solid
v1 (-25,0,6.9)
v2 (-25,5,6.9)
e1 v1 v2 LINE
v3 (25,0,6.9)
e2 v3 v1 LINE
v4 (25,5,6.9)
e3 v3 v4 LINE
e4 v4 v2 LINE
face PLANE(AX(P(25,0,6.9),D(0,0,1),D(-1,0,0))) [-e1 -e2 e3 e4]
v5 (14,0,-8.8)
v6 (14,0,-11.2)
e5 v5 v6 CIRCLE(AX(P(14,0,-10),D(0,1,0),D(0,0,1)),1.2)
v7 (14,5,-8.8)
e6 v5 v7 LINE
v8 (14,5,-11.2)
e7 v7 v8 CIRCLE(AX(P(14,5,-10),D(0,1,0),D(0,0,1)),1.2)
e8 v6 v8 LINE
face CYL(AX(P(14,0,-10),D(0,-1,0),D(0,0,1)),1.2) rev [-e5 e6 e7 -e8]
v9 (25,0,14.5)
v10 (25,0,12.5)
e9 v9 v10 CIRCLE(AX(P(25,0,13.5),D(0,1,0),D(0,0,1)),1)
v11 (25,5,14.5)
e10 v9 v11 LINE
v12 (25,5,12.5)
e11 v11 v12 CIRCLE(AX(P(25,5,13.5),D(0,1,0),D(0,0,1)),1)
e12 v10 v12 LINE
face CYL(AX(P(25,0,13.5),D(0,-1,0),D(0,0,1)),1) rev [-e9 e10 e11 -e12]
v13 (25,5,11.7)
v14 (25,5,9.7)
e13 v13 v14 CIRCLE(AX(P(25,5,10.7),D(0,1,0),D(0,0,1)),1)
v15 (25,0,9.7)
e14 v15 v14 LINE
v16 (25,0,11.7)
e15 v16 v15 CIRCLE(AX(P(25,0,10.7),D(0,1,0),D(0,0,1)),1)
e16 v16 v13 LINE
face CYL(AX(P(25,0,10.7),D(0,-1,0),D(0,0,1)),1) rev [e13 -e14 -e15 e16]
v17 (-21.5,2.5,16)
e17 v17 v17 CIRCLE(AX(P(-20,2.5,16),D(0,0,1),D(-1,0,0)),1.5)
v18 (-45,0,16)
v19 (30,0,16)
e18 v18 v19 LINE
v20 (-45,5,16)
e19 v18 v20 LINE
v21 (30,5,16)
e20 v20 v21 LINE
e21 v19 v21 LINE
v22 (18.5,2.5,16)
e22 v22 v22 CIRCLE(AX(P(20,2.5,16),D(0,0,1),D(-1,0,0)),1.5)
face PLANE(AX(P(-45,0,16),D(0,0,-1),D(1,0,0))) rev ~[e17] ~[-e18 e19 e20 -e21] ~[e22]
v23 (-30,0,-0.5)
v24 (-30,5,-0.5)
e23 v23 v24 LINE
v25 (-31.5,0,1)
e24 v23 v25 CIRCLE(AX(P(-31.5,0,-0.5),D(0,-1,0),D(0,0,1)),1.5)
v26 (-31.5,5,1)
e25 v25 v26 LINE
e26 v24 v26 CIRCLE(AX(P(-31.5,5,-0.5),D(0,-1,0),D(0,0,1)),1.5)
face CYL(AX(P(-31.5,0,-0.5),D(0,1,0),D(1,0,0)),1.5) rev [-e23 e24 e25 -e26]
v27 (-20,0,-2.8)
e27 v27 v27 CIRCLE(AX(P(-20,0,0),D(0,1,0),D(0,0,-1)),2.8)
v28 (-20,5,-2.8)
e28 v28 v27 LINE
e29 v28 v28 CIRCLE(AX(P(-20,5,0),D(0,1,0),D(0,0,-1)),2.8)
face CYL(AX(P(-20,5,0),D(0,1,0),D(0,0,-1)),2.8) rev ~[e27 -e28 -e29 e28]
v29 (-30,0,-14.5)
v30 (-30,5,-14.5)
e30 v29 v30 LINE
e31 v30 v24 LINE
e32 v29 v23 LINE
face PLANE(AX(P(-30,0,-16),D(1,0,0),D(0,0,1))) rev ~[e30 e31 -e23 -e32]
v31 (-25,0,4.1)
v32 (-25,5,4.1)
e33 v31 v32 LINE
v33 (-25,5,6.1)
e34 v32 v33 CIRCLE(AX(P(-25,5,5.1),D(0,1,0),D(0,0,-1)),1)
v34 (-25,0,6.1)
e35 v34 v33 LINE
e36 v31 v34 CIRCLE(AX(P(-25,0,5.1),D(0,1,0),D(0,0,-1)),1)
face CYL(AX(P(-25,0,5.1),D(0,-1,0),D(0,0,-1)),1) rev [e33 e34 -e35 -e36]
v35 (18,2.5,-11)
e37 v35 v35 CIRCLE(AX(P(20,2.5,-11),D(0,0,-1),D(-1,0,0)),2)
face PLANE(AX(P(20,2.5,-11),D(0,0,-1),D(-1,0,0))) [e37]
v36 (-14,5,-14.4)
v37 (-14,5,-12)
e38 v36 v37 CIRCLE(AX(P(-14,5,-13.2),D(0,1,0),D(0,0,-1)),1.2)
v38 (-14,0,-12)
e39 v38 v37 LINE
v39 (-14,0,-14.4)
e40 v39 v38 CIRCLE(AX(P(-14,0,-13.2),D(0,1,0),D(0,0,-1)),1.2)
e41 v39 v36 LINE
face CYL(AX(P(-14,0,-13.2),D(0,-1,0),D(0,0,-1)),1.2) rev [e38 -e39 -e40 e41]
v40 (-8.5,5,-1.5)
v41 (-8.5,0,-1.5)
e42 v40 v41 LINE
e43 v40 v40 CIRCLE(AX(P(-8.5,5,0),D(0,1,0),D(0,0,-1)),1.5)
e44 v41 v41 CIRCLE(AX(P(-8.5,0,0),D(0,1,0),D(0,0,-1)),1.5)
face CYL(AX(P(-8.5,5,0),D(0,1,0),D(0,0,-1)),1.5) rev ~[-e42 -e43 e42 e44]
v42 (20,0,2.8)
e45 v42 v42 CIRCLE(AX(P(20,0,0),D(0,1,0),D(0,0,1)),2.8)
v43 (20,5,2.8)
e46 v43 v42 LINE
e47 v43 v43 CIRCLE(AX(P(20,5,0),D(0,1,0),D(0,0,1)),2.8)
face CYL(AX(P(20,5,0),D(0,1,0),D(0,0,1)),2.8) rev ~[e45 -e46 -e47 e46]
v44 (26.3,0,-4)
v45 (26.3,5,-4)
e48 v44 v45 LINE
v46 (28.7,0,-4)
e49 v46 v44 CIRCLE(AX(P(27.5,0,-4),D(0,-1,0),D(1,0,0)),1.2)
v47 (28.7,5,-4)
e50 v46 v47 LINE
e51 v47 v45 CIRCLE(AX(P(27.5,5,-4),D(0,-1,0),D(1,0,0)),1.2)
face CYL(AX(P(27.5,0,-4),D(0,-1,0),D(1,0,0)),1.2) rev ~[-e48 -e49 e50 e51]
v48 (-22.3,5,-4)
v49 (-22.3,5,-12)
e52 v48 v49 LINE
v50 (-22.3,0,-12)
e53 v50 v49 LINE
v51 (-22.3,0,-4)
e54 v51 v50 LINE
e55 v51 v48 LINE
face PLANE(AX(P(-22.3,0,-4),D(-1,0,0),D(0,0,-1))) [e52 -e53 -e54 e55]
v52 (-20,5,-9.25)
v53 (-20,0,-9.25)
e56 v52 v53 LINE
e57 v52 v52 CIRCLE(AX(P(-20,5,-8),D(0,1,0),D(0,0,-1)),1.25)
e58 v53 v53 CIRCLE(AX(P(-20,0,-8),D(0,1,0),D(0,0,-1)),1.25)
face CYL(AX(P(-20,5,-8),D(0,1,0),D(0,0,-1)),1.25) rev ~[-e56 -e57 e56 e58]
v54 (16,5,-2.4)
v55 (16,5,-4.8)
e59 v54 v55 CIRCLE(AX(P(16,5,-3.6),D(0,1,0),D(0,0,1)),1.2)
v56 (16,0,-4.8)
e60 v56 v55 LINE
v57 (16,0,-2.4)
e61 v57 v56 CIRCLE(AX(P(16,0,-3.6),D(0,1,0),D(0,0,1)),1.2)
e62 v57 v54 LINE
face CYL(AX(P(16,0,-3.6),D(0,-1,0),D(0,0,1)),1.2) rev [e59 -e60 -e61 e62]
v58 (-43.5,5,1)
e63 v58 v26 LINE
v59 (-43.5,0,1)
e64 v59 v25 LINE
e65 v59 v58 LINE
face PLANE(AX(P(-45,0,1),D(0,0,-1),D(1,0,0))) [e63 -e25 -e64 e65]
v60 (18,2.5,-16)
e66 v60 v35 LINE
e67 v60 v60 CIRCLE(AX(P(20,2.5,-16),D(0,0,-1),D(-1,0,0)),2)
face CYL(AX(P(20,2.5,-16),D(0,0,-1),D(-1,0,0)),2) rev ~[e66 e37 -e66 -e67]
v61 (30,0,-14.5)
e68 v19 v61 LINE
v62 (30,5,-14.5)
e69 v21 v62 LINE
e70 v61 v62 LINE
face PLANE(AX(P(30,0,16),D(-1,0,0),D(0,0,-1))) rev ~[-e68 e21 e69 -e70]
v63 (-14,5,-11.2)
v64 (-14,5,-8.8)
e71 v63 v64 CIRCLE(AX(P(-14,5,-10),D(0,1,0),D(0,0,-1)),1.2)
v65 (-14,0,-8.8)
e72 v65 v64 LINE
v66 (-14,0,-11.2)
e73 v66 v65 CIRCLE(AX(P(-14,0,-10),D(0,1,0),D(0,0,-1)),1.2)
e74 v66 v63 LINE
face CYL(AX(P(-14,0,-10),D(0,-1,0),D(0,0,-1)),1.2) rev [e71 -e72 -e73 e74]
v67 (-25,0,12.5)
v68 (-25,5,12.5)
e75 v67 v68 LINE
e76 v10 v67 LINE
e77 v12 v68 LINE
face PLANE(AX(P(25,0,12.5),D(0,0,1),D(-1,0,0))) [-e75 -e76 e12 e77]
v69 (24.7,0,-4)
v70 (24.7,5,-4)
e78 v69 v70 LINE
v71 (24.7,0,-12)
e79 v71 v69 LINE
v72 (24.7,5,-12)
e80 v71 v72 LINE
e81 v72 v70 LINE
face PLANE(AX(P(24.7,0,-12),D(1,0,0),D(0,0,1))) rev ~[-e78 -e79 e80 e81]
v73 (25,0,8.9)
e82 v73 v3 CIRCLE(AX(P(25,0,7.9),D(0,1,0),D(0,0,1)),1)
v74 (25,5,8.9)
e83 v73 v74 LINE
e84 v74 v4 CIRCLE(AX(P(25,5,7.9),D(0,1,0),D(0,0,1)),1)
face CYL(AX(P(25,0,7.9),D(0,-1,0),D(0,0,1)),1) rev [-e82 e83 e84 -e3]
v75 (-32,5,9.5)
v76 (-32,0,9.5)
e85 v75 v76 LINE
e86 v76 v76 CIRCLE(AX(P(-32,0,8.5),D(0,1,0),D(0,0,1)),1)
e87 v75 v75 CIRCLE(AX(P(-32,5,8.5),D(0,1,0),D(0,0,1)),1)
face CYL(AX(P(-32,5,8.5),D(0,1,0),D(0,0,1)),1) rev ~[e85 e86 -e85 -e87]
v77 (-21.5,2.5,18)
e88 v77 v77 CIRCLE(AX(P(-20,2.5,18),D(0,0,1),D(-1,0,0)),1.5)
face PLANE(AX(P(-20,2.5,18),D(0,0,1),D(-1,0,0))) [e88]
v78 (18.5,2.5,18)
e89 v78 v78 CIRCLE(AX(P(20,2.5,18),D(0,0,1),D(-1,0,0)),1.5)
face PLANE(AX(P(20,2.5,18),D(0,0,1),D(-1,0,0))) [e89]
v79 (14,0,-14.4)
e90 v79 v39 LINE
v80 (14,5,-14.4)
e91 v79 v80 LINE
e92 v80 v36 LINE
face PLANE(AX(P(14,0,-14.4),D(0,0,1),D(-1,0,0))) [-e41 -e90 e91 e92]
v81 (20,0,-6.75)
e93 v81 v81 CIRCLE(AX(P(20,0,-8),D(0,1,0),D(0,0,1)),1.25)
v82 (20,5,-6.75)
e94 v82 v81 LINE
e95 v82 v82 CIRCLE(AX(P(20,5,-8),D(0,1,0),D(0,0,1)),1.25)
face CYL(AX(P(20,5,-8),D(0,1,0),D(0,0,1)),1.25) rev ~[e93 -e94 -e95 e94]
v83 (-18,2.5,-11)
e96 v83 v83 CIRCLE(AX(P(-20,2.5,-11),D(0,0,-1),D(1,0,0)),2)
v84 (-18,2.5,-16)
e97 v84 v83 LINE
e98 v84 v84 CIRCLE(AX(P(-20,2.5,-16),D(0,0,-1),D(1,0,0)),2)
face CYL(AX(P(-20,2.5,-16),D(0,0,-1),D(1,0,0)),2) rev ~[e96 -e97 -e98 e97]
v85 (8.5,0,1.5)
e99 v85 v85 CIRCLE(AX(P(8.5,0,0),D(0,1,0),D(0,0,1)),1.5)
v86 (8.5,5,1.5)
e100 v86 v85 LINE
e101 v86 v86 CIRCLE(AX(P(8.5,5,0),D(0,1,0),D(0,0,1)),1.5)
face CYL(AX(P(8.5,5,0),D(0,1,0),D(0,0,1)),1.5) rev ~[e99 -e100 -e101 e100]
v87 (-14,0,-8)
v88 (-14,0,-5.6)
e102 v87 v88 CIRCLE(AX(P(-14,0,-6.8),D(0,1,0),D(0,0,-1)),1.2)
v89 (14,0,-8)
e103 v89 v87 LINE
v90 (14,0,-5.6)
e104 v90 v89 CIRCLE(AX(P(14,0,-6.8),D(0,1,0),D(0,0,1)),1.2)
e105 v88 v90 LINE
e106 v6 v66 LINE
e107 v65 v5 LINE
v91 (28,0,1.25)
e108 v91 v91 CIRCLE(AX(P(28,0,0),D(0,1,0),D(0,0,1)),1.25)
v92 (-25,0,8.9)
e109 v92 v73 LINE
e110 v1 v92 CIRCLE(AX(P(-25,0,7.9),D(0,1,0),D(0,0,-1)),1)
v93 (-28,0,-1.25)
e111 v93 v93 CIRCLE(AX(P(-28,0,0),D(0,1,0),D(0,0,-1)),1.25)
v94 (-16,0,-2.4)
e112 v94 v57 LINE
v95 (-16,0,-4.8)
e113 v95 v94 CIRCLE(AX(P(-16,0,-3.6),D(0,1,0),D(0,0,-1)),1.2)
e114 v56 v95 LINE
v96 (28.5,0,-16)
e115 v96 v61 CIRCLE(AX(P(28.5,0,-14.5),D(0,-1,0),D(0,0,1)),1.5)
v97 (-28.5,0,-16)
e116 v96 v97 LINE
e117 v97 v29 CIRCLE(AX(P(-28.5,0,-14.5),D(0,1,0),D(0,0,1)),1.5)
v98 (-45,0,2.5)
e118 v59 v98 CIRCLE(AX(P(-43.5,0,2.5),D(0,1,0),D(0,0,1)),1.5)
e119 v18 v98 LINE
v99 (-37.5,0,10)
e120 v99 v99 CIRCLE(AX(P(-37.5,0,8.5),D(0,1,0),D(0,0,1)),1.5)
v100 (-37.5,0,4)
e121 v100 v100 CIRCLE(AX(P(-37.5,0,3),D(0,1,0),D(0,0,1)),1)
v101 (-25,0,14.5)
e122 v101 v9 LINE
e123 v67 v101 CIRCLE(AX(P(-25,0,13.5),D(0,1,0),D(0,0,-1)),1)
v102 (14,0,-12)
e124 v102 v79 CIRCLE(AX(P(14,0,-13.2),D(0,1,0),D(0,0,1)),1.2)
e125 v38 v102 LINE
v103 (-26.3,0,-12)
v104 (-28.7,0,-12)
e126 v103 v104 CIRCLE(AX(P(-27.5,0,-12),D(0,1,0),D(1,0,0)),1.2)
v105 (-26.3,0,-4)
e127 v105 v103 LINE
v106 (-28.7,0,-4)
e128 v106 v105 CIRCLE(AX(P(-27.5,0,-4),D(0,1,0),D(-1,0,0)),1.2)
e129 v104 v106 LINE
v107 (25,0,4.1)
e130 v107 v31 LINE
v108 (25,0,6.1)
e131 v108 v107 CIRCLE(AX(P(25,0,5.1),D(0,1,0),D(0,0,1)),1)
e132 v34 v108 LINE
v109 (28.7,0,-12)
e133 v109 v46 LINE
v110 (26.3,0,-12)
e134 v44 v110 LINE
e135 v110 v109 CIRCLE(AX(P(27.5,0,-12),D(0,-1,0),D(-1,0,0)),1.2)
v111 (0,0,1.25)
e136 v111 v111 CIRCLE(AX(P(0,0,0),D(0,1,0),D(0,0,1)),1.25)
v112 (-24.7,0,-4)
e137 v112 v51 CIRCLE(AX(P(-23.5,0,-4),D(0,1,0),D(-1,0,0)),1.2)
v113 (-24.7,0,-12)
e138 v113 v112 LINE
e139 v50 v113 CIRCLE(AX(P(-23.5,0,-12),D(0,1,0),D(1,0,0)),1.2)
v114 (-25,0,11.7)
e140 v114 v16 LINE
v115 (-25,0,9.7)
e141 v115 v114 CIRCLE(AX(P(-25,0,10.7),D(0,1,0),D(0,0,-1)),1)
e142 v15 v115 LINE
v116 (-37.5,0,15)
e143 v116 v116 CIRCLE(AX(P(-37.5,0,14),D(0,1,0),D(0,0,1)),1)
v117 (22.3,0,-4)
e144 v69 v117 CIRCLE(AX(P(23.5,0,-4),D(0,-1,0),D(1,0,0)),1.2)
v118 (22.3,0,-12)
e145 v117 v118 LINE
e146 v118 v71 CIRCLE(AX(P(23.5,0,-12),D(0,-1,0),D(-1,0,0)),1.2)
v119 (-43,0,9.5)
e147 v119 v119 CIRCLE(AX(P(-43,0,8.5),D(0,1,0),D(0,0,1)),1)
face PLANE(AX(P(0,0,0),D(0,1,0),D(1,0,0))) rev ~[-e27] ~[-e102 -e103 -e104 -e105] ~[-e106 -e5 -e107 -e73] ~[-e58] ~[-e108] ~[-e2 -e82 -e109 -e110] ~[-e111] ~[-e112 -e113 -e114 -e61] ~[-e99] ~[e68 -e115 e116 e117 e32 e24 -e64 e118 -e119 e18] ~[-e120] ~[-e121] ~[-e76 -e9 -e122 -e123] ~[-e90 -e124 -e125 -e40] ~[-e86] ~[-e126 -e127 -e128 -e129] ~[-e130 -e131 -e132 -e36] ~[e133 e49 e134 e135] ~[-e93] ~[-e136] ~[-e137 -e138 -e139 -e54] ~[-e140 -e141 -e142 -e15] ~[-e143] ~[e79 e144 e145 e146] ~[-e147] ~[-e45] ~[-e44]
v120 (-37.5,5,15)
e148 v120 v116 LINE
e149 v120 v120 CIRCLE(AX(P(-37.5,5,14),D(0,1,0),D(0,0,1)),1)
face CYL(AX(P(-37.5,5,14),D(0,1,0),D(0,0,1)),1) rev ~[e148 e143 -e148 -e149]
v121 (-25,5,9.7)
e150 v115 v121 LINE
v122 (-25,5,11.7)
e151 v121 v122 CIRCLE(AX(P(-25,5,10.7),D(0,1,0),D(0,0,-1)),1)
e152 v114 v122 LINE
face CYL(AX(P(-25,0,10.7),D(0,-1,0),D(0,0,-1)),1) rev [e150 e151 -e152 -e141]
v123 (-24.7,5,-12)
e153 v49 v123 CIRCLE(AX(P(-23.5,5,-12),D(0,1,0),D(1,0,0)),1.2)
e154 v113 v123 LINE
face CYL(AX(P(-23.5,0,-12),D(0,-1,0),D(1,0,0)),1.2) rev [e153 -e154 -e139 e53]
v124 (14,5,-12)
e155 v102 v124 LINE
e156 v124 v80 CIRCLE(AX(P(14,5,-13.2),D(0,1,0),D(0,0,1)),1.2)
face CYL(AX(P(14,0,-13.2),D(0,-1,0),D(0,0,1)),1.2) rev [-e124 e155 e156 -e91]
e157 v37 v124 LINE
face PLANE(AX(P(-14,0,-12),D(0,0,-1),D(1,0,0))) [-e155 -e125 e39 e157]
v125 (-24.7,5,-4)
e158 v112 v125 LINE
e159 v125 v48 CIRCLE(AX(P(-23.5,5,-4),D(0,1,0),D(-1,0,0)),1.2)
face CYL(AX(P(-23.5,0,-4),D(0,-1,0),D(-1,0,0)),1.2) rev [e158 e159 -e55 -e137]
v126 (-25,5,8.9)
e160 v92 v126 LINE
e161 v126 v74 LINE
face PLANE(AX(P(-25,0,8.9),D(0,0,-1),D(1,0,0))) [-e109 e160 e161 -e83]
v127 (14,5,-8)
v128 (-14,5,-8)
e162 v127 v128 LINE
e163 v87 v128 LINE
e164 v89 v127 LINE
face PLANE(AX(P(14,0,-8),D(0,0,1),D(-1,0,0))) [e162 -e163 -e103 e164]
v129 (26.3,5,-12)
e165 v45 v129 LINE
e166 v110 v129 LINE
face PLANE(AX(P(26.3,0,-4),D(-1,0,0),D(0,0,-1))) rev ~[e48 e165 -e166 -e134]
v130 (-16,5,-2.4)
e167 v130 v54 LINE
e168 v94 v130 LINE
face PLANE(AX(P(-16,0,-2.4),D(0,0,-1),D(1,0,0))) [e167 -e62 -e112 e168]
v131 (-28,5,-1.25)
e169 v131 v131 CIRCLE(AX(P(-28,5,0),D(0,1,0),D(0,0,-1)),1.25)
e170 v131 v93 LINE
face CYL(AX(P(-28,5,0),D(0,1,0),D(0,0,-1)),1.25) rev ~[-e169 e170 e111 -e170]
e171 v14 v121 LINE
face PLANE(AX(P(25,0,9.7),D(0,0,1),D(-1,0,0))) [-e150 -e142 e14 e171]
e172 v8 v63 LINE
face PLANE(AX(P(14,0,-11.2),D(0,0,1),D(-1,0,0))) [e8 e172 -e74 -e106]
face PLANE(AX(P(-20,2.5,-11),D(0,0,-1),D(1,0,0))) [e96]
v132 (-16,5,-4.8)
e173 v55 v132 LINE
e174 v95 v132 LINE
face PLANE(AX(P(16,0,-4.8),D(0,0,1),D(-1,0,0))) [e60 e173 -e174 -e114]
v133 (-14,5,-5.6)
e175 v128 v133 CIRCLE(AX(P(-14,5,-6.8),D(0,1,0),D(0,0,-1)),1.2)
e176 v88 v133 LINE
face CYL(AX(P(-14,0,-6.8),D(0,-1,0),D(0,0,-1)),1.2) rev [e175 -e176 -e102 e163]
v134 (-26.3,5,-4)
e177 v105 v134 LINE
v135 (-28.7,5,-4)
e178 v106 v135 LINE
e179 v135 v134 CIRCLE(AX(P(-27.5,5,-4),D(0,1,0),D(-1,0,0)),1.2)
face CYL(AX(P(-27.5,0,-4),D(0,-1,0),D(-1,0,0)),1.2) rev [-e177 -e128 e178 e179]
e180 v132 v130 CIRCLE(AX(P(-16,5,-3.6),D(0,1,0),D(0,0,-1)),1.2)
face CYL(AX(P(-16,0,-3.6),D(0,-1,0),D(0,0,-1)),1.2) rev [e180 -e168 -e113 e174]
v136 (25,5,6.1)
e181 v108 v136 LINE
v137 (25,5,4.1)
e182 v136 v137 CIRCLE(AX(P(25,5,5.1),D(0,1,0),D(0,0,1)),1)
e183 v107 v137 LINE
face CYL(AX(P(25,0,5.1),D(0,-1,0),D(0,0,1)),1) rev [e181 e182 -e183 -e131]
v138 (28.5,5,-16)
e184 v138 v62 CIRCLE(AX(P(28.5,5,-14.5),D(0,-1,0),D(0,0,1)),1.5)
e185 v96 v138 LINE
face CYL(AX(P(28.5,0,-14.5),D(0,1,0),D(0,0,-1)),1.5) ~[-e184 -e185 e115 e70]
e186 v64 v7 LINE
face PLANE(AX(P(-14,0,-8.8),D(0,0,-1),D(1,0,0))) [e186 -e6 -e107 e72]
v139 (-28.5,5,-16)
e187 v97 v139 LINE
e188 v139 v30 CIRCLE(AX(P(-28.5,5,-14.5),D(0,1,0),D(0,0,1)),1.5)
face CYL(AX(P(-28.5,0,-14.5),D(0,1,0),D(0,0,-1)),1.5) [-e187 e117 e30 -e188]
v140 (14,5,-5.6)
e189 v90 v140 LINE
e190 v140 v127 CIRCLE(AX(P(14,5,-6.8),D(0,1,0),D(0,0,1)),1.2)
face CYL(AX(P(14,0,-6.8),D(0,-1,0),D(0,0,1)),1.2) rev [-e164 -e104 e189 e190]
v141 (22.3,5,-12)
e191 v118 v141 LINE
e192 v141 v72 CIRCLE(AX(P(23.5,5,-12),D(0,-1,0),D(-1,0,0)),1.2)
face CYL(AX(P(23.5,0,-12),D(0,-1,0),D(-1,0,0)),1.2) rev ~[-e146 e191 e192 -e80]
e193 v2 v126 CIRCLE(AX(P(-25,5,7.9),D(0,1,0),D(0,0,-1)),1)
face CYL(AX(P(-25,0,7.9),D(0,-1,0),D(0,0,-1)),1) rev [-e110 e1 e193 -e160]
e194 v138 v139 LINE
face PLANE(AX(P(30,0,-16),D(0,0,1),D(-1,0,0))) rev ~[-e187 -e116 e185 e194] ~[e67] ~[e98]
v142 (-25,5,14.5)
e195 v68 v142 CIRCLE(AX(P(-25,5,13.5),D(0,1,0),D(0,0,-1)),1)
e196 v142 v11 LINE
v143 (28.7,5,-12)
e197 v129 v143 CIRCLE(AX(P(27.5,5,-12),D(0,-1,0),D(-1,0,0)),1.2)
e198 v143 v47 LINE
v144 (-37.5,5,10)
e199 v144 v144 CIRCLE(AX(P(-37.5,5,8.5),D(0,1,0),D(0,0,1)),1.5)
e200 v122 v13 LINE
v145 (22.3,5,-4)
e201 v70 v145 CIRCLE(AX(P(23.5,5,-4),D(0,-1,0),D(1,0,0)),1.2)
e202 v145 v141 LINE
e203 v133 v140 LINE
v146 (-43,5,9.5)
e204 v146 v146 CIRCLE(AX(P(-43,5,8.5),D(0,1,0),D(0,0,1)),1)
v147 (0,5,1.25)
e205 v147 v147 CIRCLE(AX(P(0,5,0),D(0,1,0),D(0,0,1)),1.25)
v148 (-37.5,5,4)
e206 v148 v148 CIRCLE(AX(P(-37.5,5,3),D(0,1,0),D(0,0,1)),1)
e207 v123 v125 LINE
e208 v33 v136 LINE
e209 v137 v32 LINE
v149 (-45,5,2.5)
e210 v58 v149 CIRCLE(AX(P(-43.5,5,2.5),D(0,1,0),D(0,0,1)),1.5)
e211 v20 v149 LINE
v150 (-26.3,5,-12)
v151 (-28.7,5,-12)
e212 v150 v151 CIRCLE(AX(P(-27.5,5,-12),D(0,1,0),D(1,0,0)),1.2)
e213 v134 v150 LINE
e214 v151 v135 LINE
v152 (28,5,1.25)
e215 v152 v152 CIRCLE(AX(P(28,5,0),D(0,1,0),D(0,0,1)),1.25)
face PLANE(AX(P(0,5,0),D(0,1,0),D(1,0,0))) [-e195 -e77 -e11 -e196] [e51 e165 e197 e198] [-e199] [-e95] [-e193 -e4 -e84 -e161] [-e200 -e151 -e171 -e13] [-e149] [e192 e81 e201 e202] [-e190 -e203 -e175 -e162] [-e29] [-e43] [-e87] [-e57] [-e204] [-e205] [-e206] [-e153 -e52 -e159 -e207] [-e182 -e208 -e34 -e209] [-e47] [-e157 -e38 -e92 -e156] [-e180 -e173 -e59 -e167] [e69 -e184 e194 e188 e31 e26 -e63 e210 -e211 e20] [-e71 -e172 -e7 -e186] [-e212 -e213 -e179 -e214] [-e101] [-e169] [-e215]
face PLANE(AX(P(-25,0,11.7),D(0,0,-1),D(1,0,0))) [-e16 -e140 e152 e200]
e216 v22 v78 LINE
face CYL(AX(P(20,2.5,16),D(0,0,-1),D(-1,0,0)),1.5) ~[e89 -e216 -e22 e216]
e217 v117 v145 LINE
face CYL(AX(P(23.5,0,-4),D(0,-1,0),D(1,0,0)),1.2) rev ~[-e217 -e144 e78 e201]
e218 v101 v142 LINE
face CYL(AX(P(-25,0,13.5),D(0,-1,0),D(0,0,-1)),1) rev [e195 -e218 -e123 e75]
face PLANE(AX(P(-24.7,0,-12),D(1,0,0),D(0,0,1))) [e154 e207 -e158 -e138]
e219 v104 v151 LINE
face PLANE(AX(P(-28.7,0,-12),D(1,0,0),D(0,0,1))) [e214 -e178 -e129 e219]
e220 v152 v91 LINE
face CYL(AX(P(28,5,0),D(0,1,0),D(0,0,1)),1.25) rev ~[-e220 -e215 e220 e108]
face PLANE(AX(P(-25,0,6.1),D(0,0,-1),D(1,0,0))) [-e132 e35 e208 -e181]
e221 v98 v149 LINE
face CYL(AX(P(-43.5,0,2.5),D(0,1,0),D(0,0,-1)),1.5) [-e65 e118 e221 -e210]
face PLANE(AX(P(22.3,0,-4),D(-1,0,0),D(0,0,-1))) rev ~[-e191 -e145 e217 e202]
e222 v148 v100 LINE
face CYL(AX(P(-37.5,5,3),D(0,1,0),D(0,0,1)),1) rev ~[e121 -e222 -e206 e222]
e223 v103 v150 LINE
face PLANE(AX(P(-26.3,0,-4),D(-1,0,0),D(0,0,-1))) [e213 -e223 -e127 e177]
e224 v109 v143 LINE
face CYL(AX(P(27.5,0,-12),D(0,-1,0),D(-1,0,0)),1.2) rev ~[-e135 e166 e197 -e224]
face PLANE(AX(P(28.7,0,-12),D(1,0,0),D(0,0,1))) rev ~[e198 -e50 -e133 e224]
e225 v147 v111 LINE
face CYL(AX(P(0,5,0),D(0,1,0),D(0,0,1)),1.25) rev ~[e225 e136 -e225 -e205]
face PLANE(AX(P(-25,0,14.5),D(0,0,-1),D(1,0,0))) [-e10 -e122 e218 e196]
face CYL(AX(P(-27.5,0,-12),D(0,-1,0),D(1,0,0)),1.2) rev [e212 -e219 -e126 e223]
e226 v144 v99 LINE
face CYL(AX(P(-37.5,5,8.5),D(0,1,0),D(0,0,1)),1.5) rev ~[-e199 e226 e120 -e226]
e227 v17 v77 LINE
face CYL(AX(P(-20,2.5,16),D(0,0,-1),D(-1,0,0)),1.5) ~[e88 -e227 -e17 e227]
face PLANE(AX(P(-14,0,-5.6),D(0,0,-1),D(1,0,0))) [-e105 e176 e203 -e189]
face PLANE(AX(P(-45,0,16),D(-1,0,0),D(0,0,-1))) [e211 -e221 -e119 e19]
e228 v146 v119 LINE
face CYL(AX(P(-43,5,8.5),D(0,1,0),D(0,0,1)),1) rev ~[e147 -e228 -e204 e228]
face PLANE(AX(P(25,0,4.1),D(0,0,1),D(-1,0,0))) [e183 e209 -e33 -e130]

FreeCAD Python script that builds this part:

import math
import FreeCAD as App
import Part
import Sketcher
Q = App.Units.Quantity


def edges_at(feature, points):
    """Names of the edges that pass closest to the given points."""
    edges = feature.Shape.Edges
    near = lambda p: min(range(len(edges)), key=lambda i: edges[i].distToShape(Part.Vertex(*p))[0])
    return sorted({f"Edge{near(p) + 1}" for p in points})


def add_polygon(sketch, points):
    """Adds a closed chain of lines whose ends are joined by coincident constraints."""
    first, n = sketch.GeometryCount, len(points)
    for a, b in zip(points, points[1:] + points[:1]):
        sketch.addGeometry(Part.LineSegment(App.Vector(*a, 0), App.Vector(*b, 0)), False)
    for i in range(n):
        sketch.addConstraint(Sketcher.Constraint("Coincident", first + i, 2, first + (i + 1) % n, 1))

doc = App.newDocument("Part")
params = doc.addObject("Spreadsheet::Sheet", "Params")
for row, (alias, value) in enumerate([
    ("sketch1_width", "60 mm"),
    ("sketch1_width2", "15 mm"),
    ("sketch1_height", "17 mm"),
    ("pad1_length", "5 mm"),
    ("sketch2_diameter", "3 mm"),
    ("sketch2_diameter2", "2 mm"),
    ("sketch2_diameter3", "2.5 mm"),
    ("sketch2_diameter4", "5.6 mm"),
    ("pocket1_length", "5 mm"),
    ("fillet_radius", "1.5 mm"),
    ("sketch3_diameter", "3 mm"),
    ("pad2_length", "2 mm"),
    ("sketch4_diameter", "4 mm"),
    ("pocket2_length", "5 mm"),
    ("sketch5_radius", "1 mm"),
    ("sketch5_radius2", "1.2 mm"),
    ("sketch5_width", "50 mm"),
    ("sketch5_width2", "32 mm"),
    ("sketch5_width3", "28 mm"),
    ("pocket3_length", "5 mm"),
], start=1):
    params.set(f"A{row}", alias)
    params.set(f"B{row}", "=" + value)
    params.setAlias(f"B{row}", alias)

body = doc.addObject("PartDesign::Body", "Body")

sketch1 = doc.addObject("Sketcher::SketchObject", "Sketch")
body.addObject(sketch1)
sketch1.AttachmentSupport = (doc.XZ_Plane, [""])
sketch1.MapMode = "FlatFace"
add_polygon(sketch1, [(30, -16), (-30, -16), (-30, 1), (-45, 1), (-45, 16), (30, 16)])
sketch1.addConstraint(Sketcher.Constraint("Horizontal", 0))
sketch1.addConstraint(Sketcher.Constraint("Vertical", 1))
sketch1.addConstraint(Sketcher.Constraint("Horizontal", 2))
sketch1.addConstraint(Sketcher.Constraint("Vertical", 3))
sketch1.addConstraint(Sketcher.Constraint("Horizontal", 4))
sketch1.addConstraint(Sketcher.Constraint("Vertical", 5))
sketch1.addConstraint(Sketcher.Constraint("Symmetric", 0, 2, 4, 2, -1, 1))
sketch1.addConstraint(Sketcher.Constraint("Equal", 2, 3))
sketch1.addConstraint(Sketcher.Constraint("DistanceX", 0, 2, 0, 1, Q("60 mm")))
sketch1.addConstraint(Sketcher.Constraint("DistanceX", 2, 2, 2, 1, Q("15 mm")))
sketch1.addConstraint(Sketcher.Constraint("DistanceY", 1, 1, 1, 2, Q("17 mm")))
sketch1.setExpression("Constraints[14]", "Params.sketch1_width")
sketch1.setExpression("Constraints[15]", "Params.sketch1_width2")
sketch1.setExpression("Constraints[16]", "Params.sketch1_height")
pad1 = doc.addObject("PartDesign::Pad", "Pad")
body.addObject(pad1)
pad1.Profile = sketch1
pad1.setExpression("Length", "Params.pad1_length")
pad1.Reversed = True

sketch2 = doc.addObject("Sketcher::SketchObject", "Sketch001")
body.addObject(sketch2)
sketch2.AttachmentSupport = (doc.XZ_Plane, [""])
sketch2.MapMode = "FlatFace"
sketch2.AttachmentOffset = App.Placement(App.Vector(0, 0, -5), App.Rotation())
sketch2.addGeometry(Part.Circle(App.Vector(8.5, 0, 0), App.Vector(0, 0, 1), 1.5), False)
sketch2.addGeometry(Part.Circle(App.Vector(-8.5, 0, 0), App.Vector(0, 0, 1), 1.5), False)
sketch2.addGeometry(Part.Circle(App.Vector(0, 0, 0), App.Vector(0, 0, 1), 1.2), False)
sketch2.addGeometry(Part.Circle(App.Vector(20, 0, 0), App.Vector(0, 0, 1), 2.8), False)
sketch2.addGeometry(Part.Circle(App.Vector(-20, 0, 0), App.Vector(0, 0, 1), 2.8), False)
sketch2.addGeometry(Part.Circle(App.Vector(20, -8, 0), App.Vector(0, 0, 1), 1.2), False)
sketch2.addGeometry(Part.Circle(App.Vector(28, 0, 0), App.Vector(0, 0, 1), 1.2), False)
sketch2.addGeometry(Part.Circle(App.Vector(-28, 0, 0), App.Vector(0, 0, 1), 1.2), False)
sketch2.addGeometry(Part.Circle(App.Vector(-20, -8, 0), App.Vector(0, 0, 1), 1.2), False)
sketch2.addGeometry(Part.Circle(App.Vector(-37.5, 8.5, 0), App.Vector(0, 0, 1), 1.5), False)
sketch2.addGeometry(Part.Circle(App.Vector(-32, 8.5, 0), App.Vector(0, 0, 1), 1), False)
sketch2.addGeometry(Part.Circle(App.Vector(-37.5, 14, 0), App.Vector(0, 0, 1), 1), False)
sketch2.addGeometry(Part.Circle(App.Vector(-43, 8.5, 0), App.Vector(0, 0, 1), 1), False)
sketch2.addGeometry(Part.Circle(App.Vector(-37.5, 3, 0), App.Vector(0, 0, 1), 1), False)
sketch2.addConstraint(Sketcher.Constraint("Coincident", 2, 3, -1, 1))
sketch2.addConstraint(Sketcher.Constraint("Equal", 0, 1))
sketch2.addConstraint(Sketcher.Constraint("Equal", 3, 4))
sketch2.addConstraint(Sketcher.Constraint("Equal", 2, 5))
sketch2.addConstraint(Sketcher.Constraint("Equal", 5, 6))
sketch2.addConstraint(Sketcher.Constraint("Equal", 6, 7))
sketch2.addConstraint(Sketcher.Constraint("Equal", 7, 8))
sketch2.addConstraint(Sketcher.Constraint("Equal", 1, 9))
sketch2.addConstraint(Sketcher.Constraint("Equal", 10, 11))
sketch2.addConstraint(Sketcher.Constraint("Equal", 11, 12))
sketch2.addConstraint(Sketcher.Constraint("Equal", 12, 13))
sketch2.addConstraint(Sketcher.Constraint("Symmetric", 0, 3, 1, 3, -1, 1))
sketch2.addConstraint(Sketcher.Constraint("Symmetric", 3, 3, 4, 3, -1, 1))
sketch2.addConstraint(Sketcher.Constraint("Symmetric", 6, 3, 7, 3, -1, 1))
sketch2.addConstraint(Sketcher.Constraint("Symmetric", 5, 3, 8, 3, -2))
sketch2.addConstraint(Sketcher.Constraint("PointOnObject", 0, 3, -1))
sketch2.addConstraint(Sketcher.Constraint("PointOnObject", 3, 3, -1))
sketch2.addConstraint(Sketcher.Constraint("PointOnObject", 6, 3, -1))
sketch2.addConstraint(Sketcher.Constraint("Horizontal", 9, 3, 10, 3))
sketch2.addConstraint(Sketcher.Constraint("Horizontal", 10, 3, 12, 3))
sketch2.addConstraint(Sketcher.Constraint("Vertical", 3, 3, 5, 3))
sketch2.addConstraint(Sketcher.Constraint("Vertical", 9, 3, 11, 3))
sketch2.addConstraint(Sketcher.Constraint("Vertical", 11, 3, 13, 3))
sketch2.addConstraint(Sketcher.Constraint("Diameter", 0, Q("3 mm")))
sketch2.addConstraint(Sketcher.Constraint("Diameter", 10, Q("2 mm")))
sketch2.addConstraint(Sketcher.Constraint("Diameter", 2, Q("2.5 mm")))
sketch2.addConstraint(Sketcher.Constraint("Diameter", 3, Q("5.6 mm")))
sketch2.addConstraint(Sketcher.Constraint("DistanceX", -1, 1, 3, 3, Q("20 mm")))
sketch2.addConstraint(Sketcher.Constraint("DistanceY", 5, 3, -1, 1, Q("8 mm")))
sketch2.addConstraint(Sketcher.Constraint("DistanceX", -1, 1, 6, 3, Q("28 mm")))
sketch2.addConstraint(Sketcher.Constraint("DistanceX", 10, 3, -1, 1, Q("32 mm")))
sketch2.addConstraint(Sketcher.Constraint("DistanceY", -1, 1, 11, 3, Q("14 mm")))
sketch2.addConstraint(Sketcher.Constraint("DistanceX", 12, 3, -1, 1, Q("43 mm")))
sketch2.addConstraint(Sketcher.Constraint("DistanceY", -1, 1, 13, 3, Q("3 mm")))
sketch2.addConstraint(Sketcher.Constraint("DistanceX", 1, 3, 0, 3, Q("17 mm")))
sketch2.addConstraint(Sketcher.Constraint("DistanceX", 9, 3, 1, 3, Q("29 mm")))
sketch2.addConstraint(Sketcher.Constraint("DistanceY", -1, 1, 9, 3, Q("8.5 mm")))
sketch2.setExpression("Constraints[23]", "Params.sketch2_diameter")
sketch2.setExpression("Constraints[24]", "Params.sketch2_diameter2")
sketch2.setExpression("Constraints[25]", "Params.sketch2_diameter3")
sketch2.setExpression("Constraints[26]", "Params.sketch2_diameter4")
pocket1 = doc.addObject("PartDesign::Pocket", "Pocket")
body.addObject(pocket1)
pocket1.Profile = sketch2
pocket1.setExpression("Length", "Params.pocket1_length")
pocket1.Reversed = True
doc.recompute()

fillet = doc.addObject("PartDesign::Fillet", "Fillet")
body.addObject(fillet)
fillet.Base = (pocket1, edges_at(pocket1, [
    (-30, 2.5, 1),
    (-45, 2.5, 1),
    (-30, 2.5, -16),
    (30, 2.5, -16),
]))
fillet.setExpression("Radius", "Params.fillet_radius")

sketch3 = doc.addObject("Sketcher::SketchObject", "Sketch002")
body.addObject(sketch3)
sketch3.AttachmentSupport = (doc.XY_Plane, [""])
sketch3.MapMode = "FlatFace"
sketch3.AttachmentOffset = App.Placement(App.Vector(0, 0, 16), App.Rotation())
sketch3.addGeometry(Part.Circle(App.Vector(20, 2.5, 0), App.Vector(0, 0, 1), 1.5), False)
sketch3.addGeometry(Part.Circle(App.Vector(-20, 2.5, 0), App.Vector(0, 0, 1), 1.5), False)
sketch3.addConstraint(Sketcher.Constraint("Equal", 0, 1))
sketch3.addConstraint(Sketcher.Constraint("Symmetric", 0, 3, 1, 3, -2))
sketch3.addConstraint(Sketcher.Constraint("Diameter", 0, Q("3 mm")))
sketch3.addConstraint(Sketcher.Constraint("DistanceX", -1, 1, 0, 3, Q("20 mm")))
sketch3.addConstraint(Sketcher.Constraint("DistanceY", -1, 1, 0, 3, Q("2.5 mm")))
sketch3.setExpression("Constraints[2]", "Params.sketch3_diameter")
pad2 = doc.addObject("PartDesign::Pad", "Pad001")
body.addObject(pad2)
pad2.Profile = sketch3
pad2.setExpression("Length", "Params.pad2_length")

sketch4 = doc.addObject("Sketcher::SketchObject", "Sketch003")
body.addObject(sketch4)
sketch4.AttachmentSupport = (doc.XY_Plane, [""])
sketch4.MapMode = "FlatFace"
sketch4.AttachmentOffset = App.Placement(App.Vector(0, 0, -16), App.Rotation())
sketch4.addGeometry(Part.Circle(App.Vector(20, 2.5, 0), App.Vector(0, 0, 1), 2), False)
sketch4.addGeometry(Part.Circle(App.Vector(-20, 2.5, 0), App.Vector(0, 0, 1), 2), False)
sketch4.addConstraint(Sketcher.Constraint("Equal", 0, 1))
sketch4.addConstraint(Sketcher.Constraint("Symmetric", 0, 3, 1, 3, -2))
sketch4.addConstraint(Sketcher.Constraint("Diameter", 0, Q("4 mm")))
sketch4.addConstraint(Sketcher.Constraint("DistanceX", -1, 1, 0, 3, Q("20 mm")))
sketch4.addConstraint(Sketcher.Constraint("DistanceY", -1, 1, 0, 3, Q("2.5 mm")))
sketch4.setExpression("Constraints[2]", "Params.sketch4_diameter")
pocket2 = doc.addObject("PartDesign::Pocket", "Pocket001")
body.addObject(pocket2)
pocket2.Profile = sketch4
pocket2.setExpression("Length", "Params.pocket2_length")
pocket2.Reversed = True

sketch5 = doc.addObject("Sketcher::SketchObject", "Sketch004")
body.addObject(sketch5)
sketch5.AttachmentSupport = (doc.XZ_Plane, [""])
sketch5.MapMode = "FlatFace"
sketch5.addGeometry(Part.LineSegment(App.Vector(25, 14.5, 0), App.Vector(-25, 14.5, 0)), False)
sketch5.addGeometry(Part.ArcOfCircle(Part.Circle(App.Vector(-25, 13.5, 0), App.Vector(0, 0, 1), 1), math.radians(90), math.radians(270)), False)
sketch5.addGeometry(Part.LineSegment(App.Vector(-25, 12.5, 0), App.Vector(25, 12.5, 0)), False)
sketch5.addGeometry(Part.ArcOfCircle(Part.Circle(App.Vector(25, 13.5, 0), App.Vector(0, 0, 1), 1), math.radians(-90), math.radians(90)), False)
sketch5.addGeometry(Part.LineSegment(App.Vector(25, 11.7, 0), App.Vector(-25, 11.7, 0)), False)
sketch5.addGeometry(Part.ArcOfCircle(Part.Circle(App.Vector(-25, 10.7, 0), App.Vector(0, 0, 1), 1), math.radians(90), math.radians(270)), False)
sketch5.addGeometry(Part.LineSegment(App.Vector(-25, 9.7, 0), App.Vector(25, 9.7, 0)), False)
sketch5.addGeometry(Part.ArcOfCircle(Part.Circle(App.Vector(25, 10.7, 0), App.Vector(0, 0, 1), 1), math.radians(-90), math.radians(90)), False)
sketch5.addGeometry(Part.LineSegment(App.Vector(25, 8.9, 0), App.Vector(-25, 8.9, 0)), False)
sketch5.addGeometry(Part.ArcOfCircle(Part.Circle(App.Vector(-25, 7.9, 0), App.Vector(0, 0, 1), 1), math.radians(90), math.radians(270)), False)
sketch5.addGeometry(Part.LineSegment(App.Vector(-25, 6.9, 0), App.Vector(25, 6.9, 0)), False)
sketch5.addGeometry(Part.ArcOfCircle(Part.Circle(App.Vector(25, 7.9, 0), App.Vector(0, 0, 1), 1), math.radians(-90), math.radians(90)), False)
sketch5.addGeometry(Part.LineSegment(App.Vector(25, 6.1, 0), App.Vector(-25, 6.1, 0)), False)
sketch5.addGeometry(Part.ArcOfCircle(Part.Circle(App.Vector(-25, 5.1, 0), App.Vector(0, 0, 1), 1), math.radians(90), math.radians(270)), False)
sketch5.addGeometry(Part.LineSegment(App.Vector(-25, 4.1, 0), App.Vector(25, 4.1, 0)), False)
sketch5.addGeometry(Part.ArcOfCircle(Part.Circle(App.Vector(25, 5.1, 0), App.Vector(0, 0, 1), 1), math.radians(-90), math.radians(90)), False)
sketch5.addGeometry(Part.LineSegment(App.Vector(16, -2.4, 0), App.Vector(-16, -2.4, 0)), False)
sketch5.addGeometry(Part.ArcOfCircle(Part.Circle(App.Vector(-16, -3.6, 0), App.Vector(0, 0, 1), 1.2), math.radians(90), math.radians(270)), False)
sketch5.addGeometry(Part.LineSegment(App.Vector(-16, -4.8, 0), App.Vector(16, -4.8, 0)), False)
sketch5.addGeometry(Part.ArcOfCircle(Part.Circle(App.Vector(16, -3.6, 0), App.Vector(0, 0, 1), 1.2), math.radians(-90), math.radians(90)), False)
sketch5.addGeometry(Part.LineSegment(App.Vector(14, -5.6, 0), App.Vector(-14, -5.6, 0)), False)
sketch5.addGeometry(Part.ArcOfCircle(Part.Circle(App.Vector(-14, -6.8, 0), App.Vector(0, 0, 1), 1.2), math.radians(90), math.radians(270)), False)
sketch5.addGeometry(Part.LineSegment(App.Vector(-14, -8, 0), App.Vector(14, -8, 0)), False)
sketch5.addGeometry(Part.ArcOfCircle(Part.Circle(App.Vector(14, -6.8, 0), App.Vector(0, 0, 1), 1.2), math.radians(-90), math.radians(90)), False)
sketch5.addGeometry(Part.LineSegment(App.Vector(14, -8.8, 0), App.Vector(-14, -8.8, 0)), False)
sketch5.addGeometry(Part.ArcOfCircle(Part.Circle(App.Vector(-14, -10, 0), App.Vector(0, 0, 1), 1.2), math.radians(90), math.radians(270)), False)
sketch5.addGeometry(Part.LineSegment(App.Vector(-14, -11.2, 0), App.Vector(14, -11.2, 0)), False)
sketch5.addGeometry(Part.ArcOfCircle(Part.Circle(App.Vector(14, -10, 0), App.Vector(0, 0, 1), 1.2), math.radians(-90), math.radians(90)), False)
sketch5.addGeometry(Part.LineSegment(App.Vector(14, -12, 0), App.Vector(-14, -12, 0)), False)
sketch5.addGeometry(Part.ArcOfCircle(Part.Circle(App.Vector(-14, -13.2, 0), App.Vector(0, 0, 1), 1.2), math.radians(90), math.radians(270)), False)
sketch5.addGeometry(Part.LineSegment(App.Vector(-14, -14.4, 0), App.Vector(14, -14.4, 0)), False)
sketch5.addGeometry(Part.ArcOfCircle(Part.Circle(App.Vector(14, -13.2, 0), App.Vector(0, 0, 1), 1.2), math.radians(-90), math.radians(90)), False)
sketch5.addGeometry(Part.LineSegment(App.Vector(-22.3, -12, 0), App.Vector(-22.3, -4, 0)), False)
sketch5.addGeometry(Part.ArcOfCircle(Part.Circle(App.Vector(-23.5, -4, 0), App.Vector(0, 0, 1), 1.2), math.radians(0), math.radians(180)), False)
sketch5.addGeometry(Part.LineSegment(App.Vector(-24.7, -4, 0), App.Vector(-24.7, -12, 0)), False)
sketch5.addGeometry(Part.ArcOfCircle(Part.Circle(App.Vector(-23.5, -12, 0), App.Vector(0, 0, 1), 1.2), math.radians(180), math.radians(360)), False)
sketch5.addGeometry(Part.LineSegment(App.Vector(-26.3, -12, 0), App.Vector(-26.3, -4, 0)), False)
sketch5.addGeometry(Part.ArcOfCircle(Part.Circle(App.Vector(-27.5, -4, 0), App.Vector(0, 0, 1), 1.2), math.radians(0), math.radians(180)), False)
sketch5.addGeometry(Part.LineSegment(App.Vector(-28.7, -4, 0), App.Vector(-28.7, -12, 0)), False)
sketch5.addGeometry(Part.ArcOfCircle(Part.Circle(App.Vector(-27.5, -12, 0), App.Vector(0, 0, 1), 1.2), math.radians(180), math.radians(360)), False)
sketch5.addGeometry(Part.LineSegment(App.Vector(22.3, -4, 0), App.Vector(22.3, -12, 0)), False)
sketch5.addGeometry(Part.ArcOfCircle(Part.Circle(App.Vector(23.5, -12, 0), App.Vector(0, 0, 1), 1.2), math.radians(180), math.radians(360)), False)
sketch5.addGeometry(Part.LineSegment(App.Vector(24.7, -12, 0), App.Vector(24.7, -4, 0)), False)
sketch5.addGeometry(Part.ArcOfCircle(Part.Circle(App.Vector(23.5, -4, 0), App.Vector(0, 0, 1), 1.2), math.radians(0), math.radians(180)), False)
sketch5.addGeometry(Part.LineSegment(App.Vector(26.3, -4, 0), App.Vector(26.3, -12, 0)), False)
sketch5.addGeometry(Part.ArcOfCircle(Part.Circle(App.Vector(27.5, -12, 0), App.Vector(0, 0, 1), 1.2), math.radians(180), math.radians(360)), False)
sketch5.addGeometry(Part.LineSegment(App.Vector(28.7, -12, 0), App.Vector(28.7, -4, 0)), False)
sketch5.addGeometry(Part.ArcOfCircle(Part.Circle(App.Vector(27.5, -4, 0), App.Vector(0, 0, 1), 1.2), math.radians(0), math.radians(180)), False)
sketch5.addConstraint(Sketcher.Constraint("Tangent", 0, 2, 1, 1))
sketch5.addConstraint(Sketcher.Constraint("Tangent", 1, 2, 2, 1))
sketch5.addConstraint(Sketcher.Constraint("Tangent", 2, 2, 3, 1))
sketch5.addConstraint(Sketcher.Constraint("Tangent", 3, 2, 0, 1))
sketch5.addConstraint(Sketcher.Constraint("Tangent", 4, 2, 5, 1))
sketch5.addConstraint(Sketcher.Constraint("Tangent", 5, 2, 6, 1))
sketch5.addConstraint(Sketcher.Constraint("Tangent", 6, 2, 7, 1))
sketch5.addConstraint(Sketcher.Constraint("Tangent", 7, 2, 4, 1))
sketch5.addConstraint(Sketcher.Constraint("Tangent", 8, 2, 9, 1))
sketch5.addConstraint(Sketcher.Constraint("Tangent", 9, 2, 10, 1))
sketch5.addConstraint(Sketcher.Constraint("Tangent", 10, 2, 11, 1))
sketch5.addConstraint(Sketcher.Constraint("Tangent", 11, 2, 8, 1))
sketch5.addConstraint(Sketcher.Constraint("Tangent", 12, 2, 13, 1))
sketch5.addConstraint(Sketcher.Constraint("Tangent", 13, 2, 14, 1))
sketch5.addConstraint(Sketcher.Constraint("Tangent", 14, 2, 15, 1))
sketch5.addConstraint(Sketcher.Constraint("Tangent", 15, 2, 12, 1))
sketch5.addConstraint(Sketcher.Constraint("Tangent", 16, 2, 17, 1))
sketch5.addConstraint(Sketcher.Constraint("Tangent", 17, 2, 18, 1))
sketch5.addConstraint(Sketcher.Constraint("Tangent", 18, 2, 19, 1))
sketch5.addConstraint(Sketcher.Constraint("Tangent", 19, 2, 16, 1))
sketch5.addConstraint(Sketcher.Constraint("Tangent", 20, 2, 21, 1))
sketch5.addConstraint(Sketcher.Constraint("Tangent", 21, 2, 22, 1))
sketch5.addConstraint(Sketcher.Constraint("Tangent", 22, 2, 23, 1))
sketch5.addConstraint(Sketcher.Constraint("Tangent", 23, 2, 20, 1))
sketch5.addConstraint(Sketcher.Constraint("Tangent", 24, 2, 25, 1))
sketch5.addConstraint(Sketcher.Constraint("Tangent", 25, 2, 26, 1))
sketch5.addConstraint(Sketcher.Constraint("Tangent", 26, 2, 27, 1))
sketch5.addConstraint(Sketcher.Constraint("Tangent", 27, 2, 24, 1))
sketch5.addConstraint(Sketcher.Constraint("Tangent", 28, 2, 29, 1))
sketch5.addConstraint(Sketcher.Constraint("Tangent", 29, 2, 30, 1))
sketch5.addConstraint(Sketcher.Constraint("Tangent", 30, 2, 31, 1))
sketch5.addConstraint(Sketcher.Constraint("Tangent", 31, 2, 28, 1))
sketch5.addConstraint(Sketcher.Constraint("Tangent", 32, 2, 33, 1))
sketch5.addConstraint(Sketcher.Constraint("Tangent", 33, 2, 34, 1))
sketch5.addConstraint(Sketcher.Constraint("Tangent", 34, 2, 35, 1))
sketch5.addConstraint(Sketcher.Constraint("Tangent", 35, 2, 32, 1))
sketch5.addConstraint(Sketcher.Constraint("Tangent", 36, 2, 37, 1))
sketch5.addConstraint(Sketcher.Constraint("Tangent", 37, 2, 38, 1))
sketch5.addConstraint(Sketcher.Constraint("Tangent", 38, 2, 39, 1))
sketch5.addConstraint(Sketcher.Constraint("Tangent", 39, 2, 36, 1))
sketch5.addConstraint(Sketcher.Constraint("Tangent", 40, 2, 41, 1))
sketch5.addConstraint(Sketcher.Constraint("Tangent", 41, 2, 42, 1))
sketch5.addConstraint(Sketcher.Constraint("Tangent", 42, 2, 43, 1))
sketch5.addConstraint(Sketcher.Constraint("Tangent", 43, 2, 40, 1))
sketch5.addConstraint(Sketcher.Constraint("Tangent", 44, 2, 45, 1))
sketch5.addConstraint(Sketcher.Constraint("Tangent", 45, 2, 46, 1))
sketch5.addConstraint(Sketcher.Constraint("Tangent", 46, 2, 47, 1))
sketch5.addConstraint(Sketcher.Constraint("Tangent", 47, 2, 44, 1))
sketch5.addConstraint(Sketcher.Constraint("Horizontal", 0))
sketch5.addConstraint(Sketcher.Constraint("Horizontal", 2))
sketch5.addConstraint(Sketcher.Constraint("Horizontal", 4))
sketch5.addConstraint(Sketcher.Constraint("Horizontal", 6))
sketch5.addConstraint(Sketcher.Constraint("Horizontal", 8))
sketch5.addConstraint(Sketcher.Constraint("Horizontal", 10))
sketch5.addConstraint(Sketcher.Constraint("Horizontal", 12))
sketch5.addConstraint(Sketcher.Constraint("Horizontal", 14))
sketch5.addConstraint(Sketcher.Constraint("Horizontal", 16))
sketch5.addConstraint(Sketcher.Constraint("Horizontal", 18))
sketch5.addConstraint(Sketcher.Constraint("Horizontal", 20))
sketch5.addConstraint(Sketcher.Constraint("Horizontal", 22))
sketch5.addConstraint(Sketcher.Constraint("Horizontal", 24))
sketch5.addConstraint(Sketcher.Constraint("Horizontal", 26))
sketch5.addConstraint(Sketcher.Constraint("Horizontal", 28))
sketch5.addConstraint(Sketcher.Constraint("Horizontal", 30))
sketch5.addConstraint(Sketcher.Constraint("Vertical", 32))
sketch5.addConstraint(Sketcher.Constraint("Vertical", 34))
sketch5.addConstraint(Sketcher.Constraint("Vertical", 36))
sketch5.addConstraint(Sketcher.Constraint("Vertical", 38))
sketch5.addConstraint(Sketcher.Constraint("Vertical", 40))
sketch5.addConstraint(Sketcher.Constraint("Vertical", 42))
sketch5.addConstraint(Sketcher.Constraint("Vertical", 44))
sketch5.addConstraint(Sketcher.Constraint("Vertical", 46))
sketch5.addConstraint(Sketcher.Constraint("Equal", 3, 5))
sketch5.addConstraint(Sketcher.Constraint("Equal", 7, 9))
sketch5.addConstraint(Sketcher.Constraint("Equal", 11, 13))
sketch5.addConstraint(Sketcher.Constraint("Equal", 19, 21))
sketch5.addConstraint(Sketcher.Constraint("Equal", 23, 25))
sketch5.addConstraint(Sketcher.Constraint("Equal", 27, 29))
sketch5.addConstraint(Sketcher.Constraint("Equal", 31, 33))
sketch5.addConstraint(Sketcher.Constraint("Equal", 35, 37))
sketch5.addConstraint(Sketcher.Constraint("Equal", 39, 41))
sketch5.addConstraint(Sketcher.Constraint("Equal", 43, 45))
sketch5.addConstraint(Sketcher.Constraint("Symmetric", 35, 3, 41, 3, -2))
sketch5.addConstraint(Sketcher.Constraint("Symmetric", 39, 3, 45, 3, -2))
sketch5.addConstraint(Sketcher.Constraint("Horizontal", 33, 3, 37, 3))
sketch5.addConstraint(Sketcher.Constraint("Horizontal", 35, 3, 39, 3))
sketch5.addConstraint(Sketcher.Constraint("Horizontal", 37, 3, 43, 3))
sketch5.addConstraint(Sketcher.Constraint("Horizontal", 43, 3, 47, 3))
sketch5.addConstraint(Sketcher.Constraint("Horizontal", 45, 3, 28, 2))
sketch5.addConstraint(Sketcher.Constraint("Vertical", 1, 3, 5, 3))
sketch5.addConstraint(Sketcher.Constraint("Vertical", 3, 3, 7, 3))
sketch5.addConstraint(Sketcher.Constraint("Vertical", 5, 3, 9, 3))
sketch5.addConstraint(Sketcher.Constraint("Vertical", 7, 3, 11, 3))
sketch5.addConstraint(Sketcher.Constraint("Vertical", 9, 3, 13, 3))
sketch5.addConstraint(Sketcher.Constraint("Vertical", 11, 3, 15, 3))
sketch5.addConstraint(Sketcher.Constraint("Vertical", 21, 3, 25, 3))
sketch5.addConstraint(Sketcher.Constraint("Vertical", 23, 3, 27, 3))
sketch5.addConstraint(Sketcher.Constraint("Vertical", 25, 3, 29, 3))
sketch5.addConstraint(Sketcher.Constraint("Vertical", 27, 3, 31, 3))
sketch5.addConstraint(Sketcher.Constraint("Radius", 1, Q("1 mm")))
sketch5.addConstraint(Sketcher.Constraint("Radius", 17, Q("1.2 mm")))
sketch5.addConstraint(Sketcher.Constraint("DistanceX", 0, 2, 0, 1, Q("50 mm")))
sketch5.addConstraint(Sketcher.Constraint("DistanceX", 16, 2, 16, 1, Q("32 mm")))
sketch5.addConstraint(Sketcher.Constraint("DistanceX", 20, 2, 20, 1, Q("28 mm")))
sketch5.addConstraint(Sketcher.Constraint("DistanceY", 32, 1, 32, 2, Q("8 mm")))
sketch5.addConstraint(Sketcher.Constraint("DistanceX", 1, 3, -1, 1, Q("25 mm")))
sketch5.addConstraint(Sketcher.Constraint("DistanceX", 17, 3, -1, 1, Q("16 mm")))
sketch5.addConstraint(Sketcher.Constraint("DistanceX", 21, 3, -1, 1, Q("14 mm")))
sketch5.addConstraint(Sketcher.Constraint("DistanceY", 25, 3, -1, 1, Q("10 mm")))
sketch5.addConstraint(Sketcher.Constraint("DistanceY", 33, 3, -1, 1, Q("4 mm")))
sketch5.addConstraint(Sketcher.Constraint("DistanceY", 21, 2, -1, 1, Q("8 mm")))
sketch5.addConstraint(Sketcher.Constraint("DistanceY", -1, 1, 1, 3, Q("13.5 mm")))
sketch5.addConstraint(Sketcher.Constraint("DistanceY", -1, 1, 5, 3, Q("10.7 mm")))
sketch5.addConstraint(Sketcher.Constraint("DistanceY", -1, 1, 9, 3, Q("7.9 mm")))
sketch5.addConstraint(Sketcher.Constraint("DistanceY", -1, 1, 13, 3, Q("5.1 mm")))
sketch5.addConstraint(Sketcher.Constraint("DistanceY", 17, 3, -1, 1, Q("3.6 mm")))
sketch5.addConstraint(Sketcher.Constraint("DistanceX", 33, 3, -1, 1, Q("23.5 mm")))
sketch5.addConstraint(Sketcher.Constraint("DistanceX", 37, 3, -1, 1, Q("27.5 mm")))
sketch5.setExpression("Constraints[99]", "Params.sketch5_radius")
sketch5.setExpression("Constraints[100]", "Params.sketch5_radius2")
sketch5.setExpression("Constraints[101]", "Params.sketch5_width")
sketch5.setExpression("Constraints[102]", "Params.sketch5_width2")
sketch5.setExpression("Constraints[103]", "Params.sketch5_width3")
pocket3 = doc.addObject("PartDesign::Pocket", "Pocket002")
body.addObject(pocket3)
pocket3.Profile = sketch5
pocket3.setExpression("Length", "Params.pocket3_length")

doc.recompute()
